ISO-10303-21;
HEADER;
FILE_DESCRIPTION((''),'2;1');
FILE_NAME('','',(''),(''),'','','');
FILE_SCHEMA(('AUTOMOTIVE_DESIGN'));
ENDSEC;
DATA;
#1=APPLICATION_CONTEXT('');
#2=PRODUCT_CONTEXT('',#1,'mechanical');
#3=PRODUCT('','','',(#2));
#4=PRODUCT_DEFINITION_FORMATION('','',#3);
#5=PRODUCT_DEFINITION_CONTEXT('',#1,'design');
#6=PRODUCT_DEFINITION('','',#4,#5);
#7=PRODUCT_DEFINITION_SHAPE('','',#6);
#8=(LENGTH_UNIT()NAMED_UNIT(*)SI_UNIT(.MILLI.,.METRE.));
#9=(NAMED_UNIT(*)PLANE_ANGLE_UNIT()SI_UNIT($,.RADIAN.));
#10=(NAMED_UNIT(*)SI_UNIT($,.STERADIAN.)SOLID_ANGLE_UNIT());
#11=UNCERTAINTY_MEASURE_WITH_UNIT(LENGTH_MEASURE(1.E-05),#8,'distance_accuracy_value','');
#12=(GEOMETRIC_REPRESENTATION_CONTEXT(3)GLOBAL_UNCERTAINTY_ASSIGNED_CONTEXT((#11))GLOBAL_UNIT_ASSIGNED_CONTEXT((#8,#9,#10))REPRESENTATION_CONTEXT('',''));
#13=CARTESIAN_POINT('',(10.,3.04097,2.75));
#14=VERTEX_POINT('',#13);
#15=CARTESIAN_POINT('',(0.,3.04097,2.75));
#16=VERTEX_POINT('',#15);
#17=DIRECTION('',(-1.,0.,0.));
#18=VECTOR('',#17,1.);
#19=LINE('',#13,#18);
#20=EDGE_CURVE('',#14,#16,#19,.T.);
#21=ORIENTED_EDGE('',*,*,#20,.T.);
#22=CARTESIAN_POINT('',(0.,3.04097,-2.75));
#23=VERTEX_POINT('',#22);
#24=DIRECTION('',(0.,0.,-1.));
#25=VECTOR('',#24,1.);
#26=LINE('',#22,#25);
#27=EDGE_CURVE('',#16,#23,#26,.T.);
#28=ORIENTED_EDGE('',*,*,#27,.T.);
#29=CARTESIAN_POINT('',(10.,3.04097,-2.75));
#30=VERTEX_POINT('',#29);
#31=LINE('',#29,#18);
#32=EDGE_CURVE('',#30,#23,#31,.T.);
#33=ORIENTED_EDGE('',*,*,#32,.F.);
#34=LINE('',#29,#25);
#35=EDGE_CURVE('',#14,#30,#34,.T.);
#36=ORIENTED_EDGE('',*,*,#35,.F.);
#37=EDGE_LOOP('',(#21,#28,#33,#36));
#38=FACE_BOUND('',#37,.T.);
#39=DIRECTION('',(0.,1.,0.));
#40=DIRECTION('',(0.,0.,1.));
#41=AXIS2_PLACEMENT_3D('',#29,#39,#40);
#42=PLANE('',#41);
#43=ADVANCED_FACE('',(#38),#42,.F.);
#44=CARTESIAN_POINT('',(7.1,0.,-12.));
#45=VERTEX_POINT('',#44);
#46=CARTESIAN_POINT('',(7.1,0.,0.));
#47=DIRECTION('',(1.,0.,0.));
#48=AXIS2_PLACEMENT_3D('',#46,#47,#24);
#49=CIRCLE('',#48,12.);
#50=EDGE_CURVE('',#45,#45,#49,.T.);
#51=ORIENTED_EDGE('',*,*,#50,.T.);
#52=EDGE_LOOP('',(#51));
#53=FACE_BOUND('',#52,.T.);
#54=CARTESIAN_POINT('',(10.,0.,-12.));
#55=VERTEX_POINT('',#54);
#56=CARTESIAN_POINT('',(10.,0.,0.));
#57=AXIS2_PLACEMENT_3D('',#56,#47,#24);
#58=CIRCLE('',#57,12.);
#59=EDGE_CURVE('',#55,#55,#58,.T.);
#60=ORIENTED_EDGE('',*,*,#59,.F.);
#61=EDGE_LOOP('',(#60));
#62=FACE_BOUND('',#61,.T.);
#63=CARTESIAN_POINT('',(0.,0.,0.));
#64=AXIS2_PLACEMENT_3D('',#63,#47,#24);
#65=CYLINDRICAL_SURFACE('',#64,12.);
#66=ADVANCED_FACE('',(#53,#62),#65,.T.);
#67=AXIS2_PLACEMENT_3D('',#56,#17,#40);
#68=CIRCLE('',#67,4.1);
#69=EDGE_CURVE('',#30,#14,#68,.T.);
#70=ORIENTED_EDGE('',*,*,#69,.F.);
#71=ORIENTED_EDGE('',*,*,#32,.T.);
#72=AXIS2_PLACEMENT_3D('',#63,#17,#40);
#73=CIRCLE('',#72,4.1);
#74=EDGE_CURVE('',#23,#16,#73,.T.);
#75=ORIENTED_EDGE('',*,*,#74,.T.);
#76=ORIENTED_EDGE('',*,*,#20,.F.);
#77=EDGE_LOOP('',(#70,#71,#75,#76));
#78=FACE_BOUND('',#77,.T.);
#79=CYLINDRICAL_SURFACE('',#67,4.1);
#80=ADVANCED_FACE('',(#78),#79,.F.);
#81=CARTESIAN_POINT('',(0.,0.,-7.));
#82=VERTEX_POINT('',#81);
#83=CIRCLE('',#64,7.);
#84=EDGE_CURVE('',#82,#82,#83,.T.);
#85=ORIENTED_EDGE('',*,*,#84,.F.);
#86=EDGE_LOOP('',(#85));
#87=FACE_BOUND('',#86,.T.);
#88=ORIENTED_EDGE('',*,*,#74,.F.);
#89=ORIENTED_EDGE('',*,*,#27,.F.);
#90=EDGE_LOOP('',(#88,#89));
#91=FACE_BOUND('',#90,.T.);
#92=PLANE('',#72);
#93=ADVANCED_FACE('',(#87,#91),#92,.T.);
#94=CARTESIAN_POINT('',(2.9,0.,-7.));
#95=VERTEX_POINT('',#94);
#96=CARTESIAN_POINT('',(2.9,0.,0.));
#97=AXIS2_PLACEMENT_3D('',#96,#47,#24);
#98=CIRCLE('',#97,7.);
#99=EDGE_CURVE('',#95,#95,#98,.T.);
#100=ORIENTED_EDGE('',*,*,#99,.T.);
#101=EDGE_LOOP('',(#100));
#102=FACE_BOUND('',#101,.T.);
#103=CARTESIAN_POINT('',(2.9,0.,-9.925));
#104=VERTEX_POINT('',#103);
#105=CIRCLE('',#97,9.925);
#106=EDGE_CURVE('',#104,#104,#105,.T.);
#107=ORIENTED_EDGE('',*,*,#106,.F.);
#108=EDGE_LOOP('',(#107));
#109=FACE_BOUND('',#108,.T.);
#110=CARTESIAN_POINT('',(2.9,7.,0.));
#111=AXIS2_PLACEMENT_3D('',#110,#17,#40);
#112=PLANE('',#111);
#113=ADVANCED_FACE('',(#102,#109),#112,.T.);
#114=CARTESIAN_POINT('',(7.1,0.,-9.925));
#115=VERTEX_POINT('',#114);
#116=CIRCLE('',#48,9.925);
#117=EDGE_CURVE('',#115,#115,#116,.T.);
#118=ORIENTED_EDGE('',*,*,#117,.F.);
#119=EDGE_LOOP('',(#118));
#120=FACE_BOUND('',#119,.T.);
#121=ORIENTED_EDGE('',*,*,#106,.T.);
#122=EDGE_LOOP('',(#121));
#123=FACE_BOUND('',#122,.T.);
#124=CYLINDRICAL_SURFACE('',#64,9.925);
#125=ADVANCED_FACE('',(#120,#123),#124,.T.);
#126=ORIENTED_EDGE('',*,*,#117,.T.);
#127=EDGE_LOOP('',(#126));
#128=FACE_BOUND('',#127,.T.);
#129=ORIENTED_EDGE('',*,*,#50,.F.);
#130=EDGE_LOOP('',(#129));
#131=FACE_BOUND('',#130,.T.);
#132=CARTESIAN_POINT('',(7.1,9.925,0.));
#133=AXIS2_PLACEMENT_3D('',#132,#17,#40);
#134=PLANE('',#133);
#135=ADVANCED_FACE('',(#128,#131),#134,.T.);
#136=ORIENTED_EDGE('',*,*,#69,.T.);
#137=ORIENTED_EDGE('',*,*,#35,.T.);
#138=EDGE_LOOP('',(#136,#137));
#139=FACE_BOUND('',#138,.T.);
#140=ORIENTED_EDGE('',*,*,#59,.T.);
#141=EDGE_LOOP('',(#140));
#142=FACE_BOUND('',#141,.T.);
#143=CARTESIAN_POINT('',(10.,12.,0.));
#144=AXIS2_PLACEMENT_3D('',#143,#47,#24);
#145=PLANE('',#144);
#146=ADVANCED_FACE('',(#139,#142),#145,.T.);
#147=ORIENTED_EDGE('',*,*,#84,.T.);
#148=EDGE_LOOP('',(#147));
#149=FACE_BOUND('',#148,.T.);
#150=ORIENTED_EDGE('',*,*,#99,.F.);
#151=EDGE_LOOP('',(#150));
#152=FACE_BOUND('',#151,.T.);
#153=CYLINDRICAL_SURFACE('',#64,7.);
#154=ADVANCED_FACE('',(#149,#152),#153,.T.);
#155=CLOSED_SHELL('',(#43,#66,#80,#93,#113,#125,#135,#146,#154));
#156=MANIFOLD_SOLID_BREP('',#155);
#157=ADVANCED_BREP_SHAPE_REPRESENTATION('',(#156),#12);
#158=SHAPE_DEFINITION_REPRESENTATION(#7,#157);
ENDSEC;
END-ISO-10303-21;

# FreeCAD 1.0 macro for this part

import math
import FreeCAD as App
import Part
import Sketcher
Q = App.Units.Quantity


def add_polygon(sketch, points):
    """Adds a closed chain of lines whose ends are joined by coincident constraints."""
    first, n = sketch.GeometryCount, len(points)
    for a, b in zip(points, points[1:] + points[:1]):
        sketch.addGeometry(Part.LineSegment(App.Vector(*a, 0), App.Vector(*b, 0)), False)
    for i in range(n):
        sketch.addConstraint(Sketcher.Constraint("Coincident", first + i, 2, first + (i + 1) % n, 1))

doc = App.newDocument("Part")
params = doc.addObject("Spreadsheet::Sheet", "Params")
for row, (alias, value) in enumerate([
    ("sketch1_width", "10 mm"),
    ("sketch1_height", "7 mm"),
    ("sketch1_height2", "12 mm"),
    ("sketch1_width2", "2.9 mm"),
    ("revolution_angle", "360 deg"),
    ("sketch2_radius", "4.1 mm"),
    ("sketch2_height", "5.5 mm"),
], start=1):
    params.set(f"A{row}", alias)
    params.set(f"B{row}", "=" + value)
    params.setAlias(f"B{row}", alias)

body = doc.addObject("PartDesign::Body", "Body")

# Sketch on XY plane
sketch1 = body.newObject("Sketcher::SketchObject", "Sketch")
sketch1.AttachmentSupport = (doc.getObject("XY_Plane"), [""])
sketch1.MapMode = "FlatFace"
add_polygon(sketch1, [(0, 7), (0, 0), (10, 0), (10, 12), (7.1, 12), (7.1, 9.9), (2.9, 9.9), (2.9, 7)])  # lines 0-7
sketch1.addConstraint(Sketcher.Constraint("Vertical", 0))
sketch1.addConstraint(Sketcher.Constraint("Horizontal", 1))
sketch1.addConstraint(Sketcher.Constraint("Vertical", 2))
sketch1.addConstraint(Sketcher.Constraint("Horizontal", 3))
sketch1.addConstraint(Sketcher.Constraint("Vertical", 4))
sketch1.addConstraint(Sketcher.Constraint("Horizontal", 5))
sketch1.addConstraint(Sketcher.Constraint("Vertical", 6))
sketch1.addConstraint(Sketcher.Constraint("Horizontal", 7))
sketch1.addConstraint(Sketcher.Constraint("Coincident", 0, 2, -1, 1))
sketch1.addConstraint(Sketcher.Constraint("Equal", 3, 7))
sketch1.addConstraint(Sketcher.Constraint("DistanceX", 1, 1, 1, 2, Q("10 mm")))
sketch1.addConstraint(Sketcher.Constraint("DistanceY", 0, 2, 0, 1, Q("7 mm")))
sketch1.addConstraint(Sketcher.Constraint("DistanceY", 2, 1, 2, 2, Q("12 mm")))
sketch1.addConstraint(Sketcher.Constraint("DistanceX", 3, 2, 3, 1, Q("2.9 mm")))
sketch1.addConstraint(Sketcher.Constraint("DistanceY", 4, 2, 4, 1, Q("2.075 mm")))
sketch1.setExpression("Constraints[18]", "Params.sketch1_width")
sketch1.setExpression("Constraints[19]", "Params.sketch1_height")
sketch1.setExpression("Constraints[20]", "Params.sketch1_height2")
sketch1.setExpression("Constraints[21]", "Params.sketch1_width2")
revolution = body.newObject("PartDesign::Revolution", "Revolution")
revolution.Profile = sketch1
revolution.ReferenceAxis = (sketch1, ["H_Axis"])
revolution.setExpression("Angle", "Params.revolution_angle")

# Sketch on YZ plane
sketch2 = body.newObject("Sketcher::SketchObject", "Sketch001")
sketch2.AttachmentSupport = (doc.getObject("YZ_Plane"), [""])
sketch2.MapMode = "FlatFace"
sketch2.addGeometry(Part.LineSegment(App.Vector(3, 2.8, 0), App.Vector(3, -2.8, 0)), False)
sketch2.addGeometry(Part.ArcOfCircle(Part.Circle(App.Vector(0, 0, 0), App.Vector(0, 0, 1), 4.1), math.radians(42), math.radians(318)), False)
sketch2.addConstraint(Sketcher.Constraint("Coincident", 0, 1, 1, 1))
sketch2.addConstraint(Sketcher.Constraint("Coincident", 1, 2, 0, 2))
sketch2.addConstraint(Sketcher.Constraint("Vertical", 0))
sketch2.addConstraint(Sketcher.Constraint("Coincident", 1, 3, -1, 1))
sketch2.addConstraint(Sketcher.Constraint("Radius", 1, Q("4.1 mm")))
sketch2.addConstraint(Sketcher.Constraint("DistanceY", 0, 2, 0, 1, Q("5.5 mm")))
sketch2.setExpression("Constraints[4]", "Params.sketch2_radius")
sketch2.setExpression("Constraints[5]", "Params.sketch2_height")
pocket1 = body.newObject("PartDesign::Pocket", "Pocket")
pocket1.Profile = sketch2
pocket1.Type = "ThroughAll"
pocket1.Reversed = True

doc.recompute()
